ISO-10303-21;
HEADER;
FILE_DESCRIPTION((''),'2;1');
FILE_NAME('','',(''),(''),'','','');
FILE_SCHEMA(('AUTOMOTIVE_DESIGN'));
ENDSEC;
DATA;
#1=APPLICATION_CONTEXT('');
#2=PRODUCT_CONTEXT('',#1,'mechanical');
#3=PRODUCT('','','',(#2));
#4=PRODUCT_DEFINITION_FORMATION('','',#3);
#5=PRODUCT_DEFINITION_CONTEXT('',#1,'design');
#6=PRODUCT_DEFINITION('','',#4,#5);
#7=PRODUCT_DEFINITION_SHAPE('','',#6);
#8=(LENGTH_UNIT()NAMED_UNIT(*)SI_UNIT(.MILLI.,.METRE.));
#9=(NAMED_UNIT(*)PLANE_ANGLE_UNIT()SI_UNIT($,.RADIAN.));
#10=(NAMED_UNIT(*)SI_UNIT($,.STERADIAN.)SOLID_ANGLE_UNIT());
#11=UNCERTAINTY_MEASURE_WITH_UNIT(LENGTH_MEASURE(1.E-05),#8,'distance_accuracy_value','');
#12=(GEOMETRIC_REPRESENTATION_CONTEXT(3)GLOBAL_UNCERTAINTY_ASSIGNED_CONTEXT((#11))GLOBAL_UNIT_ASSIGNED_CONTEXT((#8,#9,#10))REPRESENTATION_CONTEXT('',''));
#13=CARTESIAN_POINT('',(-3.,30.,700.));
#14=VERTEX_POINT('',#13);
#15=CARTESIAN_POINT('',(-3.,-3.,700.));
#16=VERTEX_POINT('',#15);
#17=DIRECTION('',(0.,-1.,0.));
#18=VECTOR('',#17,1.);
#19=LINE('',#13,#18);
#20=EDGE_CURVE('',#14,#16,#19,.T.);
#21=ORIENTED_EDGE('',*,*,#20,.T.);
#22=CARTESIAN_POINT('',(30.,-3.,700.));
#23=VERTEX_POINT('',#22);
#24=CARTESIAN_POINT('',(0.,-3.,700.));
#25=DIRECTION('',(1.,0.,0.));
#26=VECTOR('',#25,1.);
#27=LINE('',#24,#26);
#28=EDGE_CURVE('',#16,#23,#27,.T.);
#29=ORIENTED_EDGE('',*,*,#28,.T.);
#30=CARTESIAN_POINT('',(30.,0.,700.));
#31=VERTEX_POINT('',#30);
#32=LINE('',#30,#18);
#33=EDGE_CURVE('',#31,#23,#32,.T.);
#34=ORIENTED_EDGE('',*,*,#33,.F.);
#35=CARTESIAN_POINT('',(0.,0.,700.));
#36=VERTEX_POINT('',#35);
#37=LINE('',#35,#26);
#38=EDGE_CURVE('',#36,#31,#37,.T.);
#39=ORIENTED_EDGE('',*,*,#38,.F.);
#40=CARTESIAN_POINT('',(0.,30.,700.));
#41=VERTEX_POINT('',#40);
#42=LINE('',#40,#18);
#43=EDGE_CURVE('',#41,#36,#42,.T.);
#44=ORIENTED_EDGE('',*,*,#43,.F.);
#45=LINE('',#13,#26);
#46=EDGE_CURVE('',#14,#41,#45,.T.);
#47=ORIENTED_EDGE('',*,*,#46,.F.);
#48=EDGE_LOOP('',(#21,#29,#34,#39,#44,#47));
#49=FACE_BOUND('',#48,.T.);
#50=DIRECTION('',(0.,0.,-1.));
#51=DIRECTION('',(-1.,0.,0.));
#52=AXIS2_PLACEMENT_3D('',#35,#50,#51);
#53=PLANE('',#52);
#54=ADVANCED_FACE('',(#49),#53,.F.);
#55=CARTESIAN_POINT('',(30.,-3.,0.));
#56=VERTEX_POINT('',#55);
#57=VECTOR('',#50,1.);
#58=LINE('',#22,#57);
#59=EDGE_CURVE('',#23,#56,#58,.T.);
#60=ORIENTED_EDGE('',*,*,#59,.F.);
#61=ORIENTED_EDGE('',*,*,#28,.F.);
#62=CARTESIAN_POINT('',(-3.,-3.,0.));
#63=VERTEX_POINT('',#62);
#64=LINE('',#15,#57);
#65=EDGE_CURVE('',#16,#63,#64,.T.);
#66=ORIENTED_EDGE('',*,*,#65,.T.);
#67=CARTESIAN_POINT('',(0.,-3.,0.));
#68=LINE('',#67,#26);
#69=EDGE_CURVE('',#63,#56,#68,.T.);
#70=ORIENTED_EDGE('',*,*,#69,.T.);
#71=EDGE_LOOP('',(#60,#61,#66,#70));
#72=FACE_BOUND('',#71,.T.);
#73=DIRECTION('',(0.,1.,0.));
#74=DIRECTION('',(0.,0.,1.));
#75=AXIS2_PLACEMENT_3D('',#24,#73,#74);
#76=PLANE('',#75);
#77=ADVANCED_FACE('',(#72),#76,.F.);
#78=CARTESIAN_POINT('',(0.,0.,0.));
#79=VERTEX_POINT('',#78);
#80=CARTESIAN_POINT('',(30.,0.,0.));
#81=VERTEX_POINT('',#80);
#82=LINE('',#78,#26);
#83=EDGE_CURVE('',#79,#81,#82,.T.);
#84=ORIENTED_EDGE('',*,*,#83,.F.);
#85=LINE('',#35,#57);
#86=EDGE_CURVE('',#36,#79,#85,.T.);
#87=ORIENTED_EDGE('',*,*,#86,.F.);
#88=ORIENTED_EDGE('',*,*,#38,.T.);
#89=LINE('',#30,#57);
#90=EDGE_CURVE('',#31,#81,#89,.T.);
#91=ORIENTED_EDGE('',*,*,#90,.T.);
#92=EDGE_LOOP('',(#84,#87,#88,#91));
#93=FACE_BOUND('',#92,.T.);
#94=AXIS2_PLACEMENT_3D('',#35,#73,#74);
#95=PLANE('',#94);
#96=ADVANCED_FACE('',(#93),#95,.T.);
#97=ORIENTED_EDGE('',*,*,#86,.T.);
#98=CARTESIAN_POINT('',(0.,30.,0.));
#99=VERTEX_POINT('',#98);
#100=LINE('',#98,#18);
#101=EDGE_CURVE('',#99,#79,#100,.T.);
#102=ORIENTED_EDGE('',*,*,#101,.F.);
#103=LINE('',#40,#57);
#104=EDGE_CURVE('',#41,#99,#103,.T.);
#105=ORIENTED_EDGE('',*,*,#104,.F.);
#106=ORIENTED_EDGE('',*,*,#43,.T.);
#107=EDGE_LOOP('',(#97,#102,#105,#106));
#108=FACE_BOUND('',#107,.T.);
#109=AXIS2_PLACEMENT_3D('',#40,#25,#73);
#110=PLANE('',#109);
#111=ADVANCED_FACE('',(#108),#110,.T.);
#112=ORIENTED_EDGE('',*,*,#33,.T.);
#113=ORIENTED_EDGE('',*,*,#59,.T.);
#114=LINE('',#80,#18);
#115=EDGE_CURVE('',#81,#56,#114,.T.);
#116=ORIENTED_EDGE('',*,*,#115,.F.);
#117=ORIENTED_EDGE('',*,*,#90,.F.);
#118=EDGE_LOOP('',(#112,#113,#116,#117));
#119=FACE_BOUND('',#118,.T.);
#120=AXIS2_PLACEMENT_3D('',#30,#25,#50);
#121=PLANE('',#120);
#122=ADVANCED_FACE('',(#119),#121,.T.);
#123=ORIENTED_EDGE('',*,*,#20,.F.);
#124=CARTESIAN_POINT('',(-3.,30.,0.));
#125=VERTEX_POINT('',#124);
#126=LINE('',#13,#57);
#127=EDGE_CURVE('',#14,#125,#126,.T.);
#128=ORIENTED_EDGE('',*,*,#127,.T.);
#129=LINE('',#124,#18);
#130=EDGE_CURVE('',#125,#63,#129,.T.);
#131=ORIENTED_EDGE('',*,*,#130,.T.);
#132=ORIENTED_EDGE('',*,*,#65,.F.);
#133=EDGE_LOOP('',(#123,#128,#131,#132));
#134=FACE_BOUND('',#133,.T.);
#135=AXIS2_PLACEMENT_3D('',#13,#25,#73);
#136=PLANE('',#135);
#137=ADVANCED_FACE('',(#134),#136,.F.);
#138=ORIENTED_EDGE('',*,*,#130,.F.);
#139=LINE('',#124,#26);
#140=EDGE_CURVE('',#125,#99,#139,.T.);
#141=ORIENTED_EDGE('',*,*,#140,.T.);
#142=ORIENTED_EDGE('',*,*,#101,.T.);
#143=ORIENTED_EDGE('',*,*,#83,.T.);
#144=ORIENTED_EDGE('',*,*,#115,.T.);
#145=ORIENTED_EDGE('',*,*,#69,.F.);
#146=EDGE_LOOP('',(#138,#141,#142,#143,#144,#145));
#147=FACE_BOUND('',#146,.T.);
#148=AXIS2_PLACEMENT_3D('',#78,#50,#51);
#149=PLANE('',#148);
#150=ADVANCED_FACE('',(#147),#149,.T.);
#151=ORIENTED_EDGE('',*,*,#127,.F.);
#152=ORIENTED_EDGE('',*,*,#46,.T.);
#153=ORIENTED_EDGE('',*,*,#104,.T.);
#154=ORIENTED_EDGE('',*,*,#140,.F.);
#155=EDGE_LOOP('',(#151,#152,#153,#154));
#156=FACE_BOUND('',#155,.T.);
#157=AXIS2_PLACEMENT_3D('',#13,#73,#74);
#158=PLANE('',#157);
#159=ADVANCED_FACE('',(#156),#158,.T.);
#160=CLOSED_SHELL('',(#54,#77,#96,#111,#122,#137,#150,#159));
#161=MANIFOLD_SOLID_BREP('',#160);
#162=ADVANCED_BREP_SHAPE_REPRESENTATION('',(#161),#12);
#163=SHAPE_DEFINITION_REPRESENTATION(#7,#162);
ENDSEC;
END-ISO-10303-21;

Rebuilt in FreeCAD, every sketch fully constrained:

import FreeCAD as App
import Part
import Sketcher
from FreeCAD import Vector
Q = App.Units.Quantity

doc = App.newDocument("Part")
body = doc.addObject("PartDesign::Body", "Body")

sketch1 = body.newObject("Sketcher::SketchObject", "Sketch")
sketch1.AttachmentSupport = (doc.getObject("XY_Plane"), [""])
sketch1.MapMode = "FlatFace"
sketch1.addGeometry(Part.LineSegment(Vector(0, 0, 0), Vector(0, 30, 0)), False)
sketch1.addGeometry(Part.LineSegment(Vector(0, 30, 0), Vector(-3, 30, 0)), False)
sketch1.addGeometry(Part.LineSegment(Vector(-3, 30, 0), Vector(-3, -3, 0)), False)
sketch1.addGeometry(Part.LineSegment(Vector(-3, -3, 0), Vector(30, -3, 0)), False)
sketch1.addGeometry(Part.LineSegment(Vector(30, -3, 0), Vector(30, 0, 0)), False)
sketch1.addGeometry(Part.LineSegment(Vector(30, 0, 0), Vector(0, 0, 0)), False)
sketch1.addConstraint(Sketcher.Constraint("Coincident", 0, 2, 1, 1))
sketch1.addConstraint(Sketcher.Constraint("Coincident", 1, 2, 2, 1))
sketch1.addConstraint(Sketcher.Constraint("Coincident", 2, 2, 3, 1))
sketch1.addConstraint(Sketcher.Constraint("Coincident", 3, 2, 4, 1))
sketch1.addConstraint(Sketcher.Constraint("Coincident", 4, 2, 5, 1))
sketch1.addConstraint(Sketcher.Constraint("Coincident", 5, 2, 0, 1))
sketch1.addConstraint(Sketcher.Constraint("Vertical", 0))
sketch1.addConstraint(Sketcher.Constraint("Horizontal", 1))
sketch1.addConstraint(Sketcher.Constraint("Vertical", 2))
sketch1.addConstraint(Sketcher.Constraint("Horizontal", 3))
sketch1.addConstraint(Sketcher.Constraint("Vertical", 4))
sketch1.addConstraint(Sketcher.Constraint("Horizontal", 5))
sketch1.addConstraint(Sketcher.Constraint("Coincident", 5, 2, -1, 1))
sketch1.addConstraint(Sketcher.Constraint("Equal", 5, 0))
sketch1.addConstraint(Sketcher.Constraint("Equal", 3, 2))
sketch1.addConstraint(Sketcher.Constraint("DistanceX", 1, 2, 1, 1, Q("3 mm")))
sketch1.addConstraint(Sketcher.Constraint("DistanceX", 3, 1, 3, 2, Q("33 mm")))
pad1 = body.newObject("PartDesign::Pad", "Pad")
pad1.Profile = sketch1
pad1.Length = 700

doc.recompute()
